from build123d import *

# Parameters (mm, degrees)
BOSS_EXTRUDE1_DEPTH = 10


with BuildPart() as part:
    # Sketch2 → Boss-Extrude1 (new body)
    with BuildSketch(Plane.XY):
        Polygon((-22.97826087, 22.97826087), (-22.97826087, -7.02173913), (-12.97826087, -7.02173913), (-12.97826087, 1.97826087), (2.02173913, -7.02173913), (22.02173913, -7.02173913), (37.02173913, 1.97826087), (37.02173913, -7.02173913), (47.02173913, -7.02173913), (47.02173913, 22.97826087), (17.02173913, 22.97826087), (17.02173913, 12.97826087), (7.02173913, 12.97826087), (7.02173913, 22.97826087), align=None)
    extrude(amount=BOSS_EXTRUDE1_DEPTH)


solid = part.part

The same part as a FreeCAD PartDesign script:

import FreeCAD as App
import Part
import Sketcher
from FreeCAD import Vector


def add_polygon(sketch, points):
    """Adds a closed chain of lines whose ends are joined by coincident constraints."""
    first, n = sketch.GeometryCount, len(points)
    for a, b in zip(points, points[1:] + points[:1]):
        sketch.addGeometry(Part.LineSegment(App.Vector(*a, 0), App.Vector(*b, 0)), False)
    for i in range(n):
        sketch.addConstraint(Sketcher.Constraint("Coincident", first + i, 2, first + (i + 1) % n, 1))

doc = App.newDocument("Part")
params = doc.addObject("Spreadsheet::Sheet", "Params")
for row, (alias, value) in enumerate([
    ("sketch1_width", "10 mm"),
    ("sketch1_width2", "20 mm"),
    ("sketch1_width3", "30 mm"),
    ("sketch1_height", "9 mm"),
    ("pad1_length", "10 mm"),
], start=1):
    params.set(f"A{row}", alias)
    params.set(f"B{row}", "=" + value)
    params.setAlias(f"B{row}", alias)

body = doc.addObject("PartDesign::Body", "Body")

# Sketch on XY plane
sketch1 = body.newObject("Sketcher::SketchObject", "Sketch")
sketch1.AttachmentSupport = (doc.getObject("XY_Plane"), [""])
sketch1.MapMode = "FlatFace"
add_polygon(sketch1, [(-23, 23), (-23, -7), (-13, -7), (-13, 2), (2, -7), (22, -7), (37, 2), (37, -7), (47, -7), (47, 23), (17, 23), (17, 13), (7, 13), (7, 23)])  # lines 0-13
sketch1.addConstraint(Sketcher.Constraint("Vertical", 0))
sketch1.addConstraint(Sketcher.Constraint("Horizontal", 1))
sketch1.addConstraint(Sketcher.Constraint("Vertical", 2))
sketch1.addConstraint(Sketcher.Constraint("Horizontal", 4))
sketch1.addConstraint(Sketcher.Constraint("Vertical", 6))
sketch1.addConstraint(Sketcher.Constraint("Horizontal", 7))
sketch1.addConstraint(Sketcher.Constraint("Vertical", 8))
sketch1.addConstraint(Sketcher.Constraint("Horizontal", 9))
sketch1.addConstraint(Sketcher.Constraint("Vertical", 10))
sketch1.addConstraint(Sketcher.Constraint("Horizontal", 11))
sketch1.addConstraint(Sketcher.Constraint("Vertical", 12))
sketch1.addConstraint(Sketcher.Constraint("Horizontal", 13))
sketch1.addConstraint(Sketcher.Constraint("Horizontal", 1, 2, 3, 2))
sketch1.addConstraint(Sketcher.Constraint("Horizontal", 2, 2, 5, 2))
sketch1.addConstraint(Sketcher.Constraint("Horizontal", 4, 2, 6, 2))
sketch1.addConstraint(Sketcher.Constraint("Horizontal", 9, 2, 12, 2))
sketch1.addConstraint(Sketcher.Constraint("Equal", 1, 7))
sketch1.addConstraint(Sketcher.Constraint("Equal", 7, 11))
sketch1.addConstraint(Sketcher.Constraint("Equal", 9, 13))
sketch1.addConstraint(Sketcher.Constraint("Equal", 13, 0))
sketch1.addConstraint(Sketcher.Constraint("Equal", 11, 10))
sketch1.addConstraint(Sketcher.Constraint("Equal", 3, 5))
sketch1.addConstraint(Sketcher.Constraint("DistanceX", 1, 1, 1, 2, 10.0))
sketch1.addConstraint(Sketcher.Constraint("DistanceX", 4, 1, 4, 2, 20.0))
sketch1.addConstraint(Sketcher.Constraint("DistanceX", 9, 2, 9, 1, 30.0))
sketch1.addConstraint(Sketcher.Constraint("DistanceY", 2, 1, 2, 2, 9.0))
sketch1.addConstraint(Sketcher.Constraint("DistanceX", 0, 2, -1, 1, 22.978261))
sketch1.addConstraint(Sketcher.Constraint("DistanceY", 0, 2, -1, 1, 7.021739))
sketch1.setExpression("Constraints[36]", "Params.sketch1_width")
sketch1.setExpression("Constraints[37]", "Params.sketch1_width2")
sketch1.setExpression("Constraints[38]", "Params.sketch1_width3")
sketch1.setExpression("Constraints[39]", "Params.sketch1_height")
pad1 = body.newObject("PartDesign::Pad", "Pad")
pad1.Profile = sketch1
pad1.setExpression("Length", "Params.pad1_length")

doc.recompute()
